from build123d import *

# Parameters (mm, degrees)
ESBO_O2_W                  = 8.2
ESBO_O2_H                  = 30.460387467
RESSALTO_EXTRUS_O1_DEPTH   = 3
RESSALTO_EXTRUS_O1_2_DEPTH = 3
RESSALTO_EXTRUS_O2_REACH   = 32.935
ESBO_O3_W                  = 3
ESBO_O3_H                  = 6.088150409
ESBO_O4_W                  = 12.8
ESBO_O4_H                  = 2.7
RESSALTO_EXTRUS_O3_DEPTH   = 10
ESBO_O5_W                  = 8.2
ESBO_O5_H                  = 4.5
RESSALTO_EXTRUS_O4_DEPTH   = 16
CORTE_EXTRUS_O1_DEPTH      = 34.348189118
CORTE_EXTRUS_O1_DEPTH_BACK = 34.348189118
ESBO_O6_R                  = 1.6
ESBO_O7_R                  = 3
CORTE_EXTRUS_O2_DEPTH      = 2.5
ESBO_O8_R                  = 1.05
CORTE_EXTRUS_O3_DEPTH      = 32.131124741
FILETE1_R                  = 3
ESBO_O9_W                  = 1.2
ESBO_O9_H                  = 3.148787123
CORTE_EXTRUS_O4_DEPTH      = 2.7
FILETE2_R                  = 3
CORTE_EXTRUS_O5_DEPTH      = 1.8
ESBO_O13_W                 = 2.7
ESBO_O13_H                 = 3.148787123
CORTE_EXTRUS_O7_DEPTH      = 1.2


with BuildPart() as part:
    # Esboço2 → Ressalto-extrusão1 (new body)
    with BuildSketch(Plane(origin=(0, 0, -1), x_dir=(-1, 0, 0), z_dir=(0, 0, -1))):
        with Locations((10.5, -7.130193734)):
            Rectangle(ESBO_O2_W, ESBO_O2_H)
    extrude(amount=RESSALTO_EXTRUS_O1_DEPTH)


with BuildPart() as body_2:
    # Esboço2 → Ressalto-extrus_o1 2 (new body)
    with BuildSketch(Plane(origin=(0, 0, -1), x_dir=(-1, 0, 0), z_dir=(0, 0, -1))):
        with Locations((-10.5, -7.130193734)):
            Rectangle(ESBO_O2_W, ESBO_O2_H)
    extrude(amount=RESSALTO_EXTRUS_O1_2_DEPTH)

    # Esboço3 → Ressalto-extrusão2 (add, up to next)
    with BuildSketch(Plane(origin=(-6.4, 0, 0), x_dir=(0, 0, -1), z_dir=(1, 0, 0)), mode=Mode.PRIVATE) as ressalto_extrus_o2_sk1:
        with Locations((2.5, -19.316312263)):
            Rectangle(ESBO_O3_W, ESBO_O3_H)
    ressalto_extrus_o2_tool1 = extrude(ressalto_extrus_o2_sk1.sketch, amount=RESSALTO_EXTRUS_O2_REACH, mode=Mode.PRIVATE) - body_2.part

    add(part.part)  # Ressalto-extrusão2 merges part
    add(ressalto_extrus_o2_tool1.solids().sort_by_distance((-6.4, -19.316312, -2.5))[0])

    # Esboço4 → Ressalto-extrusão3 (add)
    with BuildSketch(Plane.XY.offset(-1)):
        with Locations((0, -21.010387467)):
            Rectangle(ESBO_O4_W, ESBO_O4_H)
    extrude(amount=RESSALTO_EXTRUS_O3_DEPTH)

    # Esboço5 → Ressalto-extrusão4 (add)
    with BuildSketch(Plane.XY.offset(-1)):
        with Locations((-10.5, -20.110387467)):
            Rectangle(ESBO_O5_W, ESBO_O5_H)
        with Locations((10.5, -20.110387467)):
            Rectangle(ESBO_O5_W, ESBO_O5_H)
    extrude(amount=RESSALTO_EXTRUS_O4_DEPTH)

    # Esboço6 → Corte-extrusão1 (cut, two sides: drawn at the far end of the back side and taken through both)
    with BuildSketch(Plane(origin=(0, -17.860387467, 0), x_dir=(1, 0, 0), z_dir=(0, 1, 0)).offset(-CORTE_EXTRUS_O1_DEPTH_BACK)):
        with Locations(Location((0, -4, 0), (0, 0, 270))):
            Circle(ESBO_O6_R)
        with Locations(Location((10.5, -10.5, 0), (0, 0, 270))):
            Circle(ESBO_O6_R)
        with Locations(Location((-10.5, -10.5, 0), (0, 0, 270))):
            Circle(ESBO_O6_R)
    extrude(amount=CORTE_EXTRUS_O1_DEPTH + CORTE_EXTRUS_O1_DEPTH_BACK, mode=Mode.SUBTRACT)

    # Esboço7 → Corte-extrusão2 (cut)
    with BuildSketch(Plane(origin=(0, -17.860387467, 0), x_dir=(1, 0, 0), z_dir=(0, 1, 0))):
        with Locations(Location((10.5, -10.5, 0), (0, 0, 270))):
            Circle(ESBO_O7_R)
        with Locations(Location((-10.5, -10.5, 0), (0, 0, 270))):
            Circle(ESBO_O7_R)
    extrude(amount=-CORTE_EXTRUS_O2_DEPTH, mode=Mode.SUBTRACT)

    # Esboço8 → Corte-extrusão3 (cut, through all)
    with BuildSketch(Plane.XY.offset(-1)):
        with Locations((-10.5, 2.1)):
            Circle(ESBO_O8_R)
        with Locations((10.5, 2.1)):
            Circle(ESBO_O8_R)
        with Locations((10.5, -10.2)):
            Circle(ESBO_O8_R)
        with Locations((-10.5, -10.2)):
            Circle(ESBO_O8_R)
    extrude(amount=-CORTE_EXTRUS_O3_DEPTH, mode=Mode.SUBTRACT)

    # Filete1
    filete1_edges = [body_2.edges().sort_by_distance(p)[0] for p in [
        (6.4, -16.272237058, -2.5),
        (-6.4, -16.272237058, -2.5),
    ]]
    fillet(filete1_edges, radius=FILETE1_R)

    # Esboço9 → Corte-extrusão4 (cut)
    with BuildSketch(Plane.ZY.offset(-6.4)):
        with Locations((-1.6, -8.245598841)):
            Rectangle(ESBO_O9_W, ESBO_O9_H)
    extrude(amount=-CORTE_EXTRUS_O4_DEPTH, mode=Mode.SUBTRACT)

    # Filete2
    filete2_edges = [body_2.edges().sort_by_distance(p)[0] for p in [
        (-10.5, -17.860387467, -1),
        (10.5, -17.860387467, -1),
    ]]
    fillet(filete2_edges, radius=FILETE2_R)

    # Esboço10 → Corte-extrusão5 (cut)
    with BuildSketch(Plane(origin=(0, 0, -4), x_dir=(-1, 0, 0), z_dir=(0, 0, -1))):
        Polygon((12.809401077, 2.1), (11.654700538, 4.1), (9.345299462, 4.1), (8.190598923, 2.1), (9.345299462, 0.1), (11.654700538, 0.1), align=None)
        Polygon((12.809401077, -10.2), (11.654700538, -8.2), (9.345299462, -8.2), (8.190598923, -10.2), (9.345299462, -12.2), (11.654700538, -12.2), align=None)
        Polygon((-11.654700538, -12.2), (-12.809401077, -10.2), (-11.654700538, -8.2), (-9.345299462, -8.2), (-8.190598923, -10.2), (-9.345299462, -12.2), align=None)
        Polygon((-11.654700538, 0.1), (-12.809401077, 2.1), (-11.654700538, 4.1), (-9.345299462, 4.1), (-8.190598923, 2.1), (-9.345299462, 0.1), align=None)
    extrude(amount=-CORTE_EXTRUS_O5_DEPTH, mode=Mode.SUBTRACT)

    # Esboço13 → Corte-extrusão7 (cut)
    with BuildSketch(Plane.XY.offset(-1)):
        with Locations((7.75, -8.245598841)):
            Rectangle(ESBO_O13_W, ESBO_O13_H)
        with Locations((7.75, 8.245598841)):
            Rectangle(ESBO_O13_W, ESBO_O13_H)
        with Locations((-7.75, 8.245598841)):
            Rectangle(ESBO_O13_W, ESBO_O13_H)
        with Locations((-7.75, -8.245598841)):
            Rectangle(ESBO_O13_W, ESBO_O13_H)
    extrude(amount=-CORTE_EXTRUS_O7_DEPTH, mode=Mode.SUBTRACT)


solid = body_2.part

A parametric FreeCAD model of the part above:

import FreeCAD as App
import Part
import Sketcher
from FreeCAD import Vector
Q = App.Units.Quantity


def edges_at(feature, points):
    """Names of the edges that pass closest to the given points."""
    edges = feature.Shape.Edges
    near = lambda p: min(range(len(edges)), key=lambda i: edges[i].distToShape(Part.Vertex(*p))[0])
    return sorted({f"Edge{near(p) + 1}" for p in points})


def add_polygon(sketch, points):
    """Adds a closed chain of lines whose ends are joined by coincident constraints."""
    first, n = sketch.GeometryCount, len(points)
    for a, b in zip(points, points[1:] + points[:1]):
        sketch.addGeometry(Part.LineSegment(App.Vector(*a, 0), App.Vector(*b, 0)), False)
    for i in range(n):
        sketch.addConstraint(Sketcher.Constraint("Coincident", first + i, 2, first + (i + 1) % n, 1))

doc = App.newDocument("Part")
body = doc.addObject("PartDesign::Body", "Body")

sketch1 = doc.addObject("Sketcher::SketchObject", "Sketch")
body.addObject(sketch1)
sketch1.AttachmentSupport = (doc.XY_Plane, [""])
sketch1.MapMode = "FlatFace"
sketch1.AttachmentOffset = App.Placement(Vector(0, 0, -1), App.Rotation())
add_polygon(sketch1, [(-6, 8), (-6, -22), (-15, -22), (-15, 8)])
sketch1.addConstraint([
    Sketcher.Constraint("Vertical", 0),
    Sketcher.Constraint("Horizontal", 1),
    Sketcher.Constraint("Vertical", 2),
    Sketcher.Constraint("Horizontal", 3),
    Sketcher.Constraint("DistanceX", 1, 2, 1, 1, Q("8.2 mm")),
    Sketcher.Constraint("DistanceX", 0, 2, -1, 1, Q("6.4 mm")),
    Sketcher.Constraint("DistanceY", -1, 1, 2, 2, Q("8.1 mm")),
    Sketcher.Constraint("DistanceY", 0, 2, 0, 1, Q("30.460387 mm")),
])
pad1 = doc.addObject("PartDesign::Pad", "Pad")
body.addObject(pad1)
pad1.Profile = sketch1
pad1.Length = 3
pad1.Reversed = True
body2 = doc.addObject("PartDesign::Body", "Body001")
body2.AllowCompound = True

sketch2 = doc.addObject("Sketcher::SketchObject", "Sketch001")
body2.addObject(sketch2)
sketch2.AttachmentSupport = (doc.getObject("XY_Plane001"), [""])
sketch2.MapMode = "FlatFace"
sketch2.AttachmentOffset = App.Placement(Vector(0, 0, -1), App.Rotation())
add_polygon(sketch2, [(15, 8), (15, -22), (6, -22), (6, 8)])
sketch2.addConstraint([
    Sketcher.Constraint("Vertical", 0),
    Sketcher.Constraint("Horizontal", 1),
    Sketcher.Constraint("Vertical", 2),
    Sketcher.Constraint("Horizontal", 3),
    Sketcher.Constraint("DistanceX", 1, 2, 1, 1, Q("8.2 mm")),
    Sketcher.Constraint("DistanceX", -1, 1, 0, 2, Q("14.6 mm")),
    Sketcher.Constraint("DistanceY", -1, 1, 2, 2, Q("8.1 mm")),
    Sketcher.Constraint("DistanceY", 0, 2, 0, 1, Q("30.460387 mm")),
])
pad2 = doc.addObject("PartDesign::Pad", "Pad001")
body2.addObject(pad2)
pad2.Profile = sketch2
pad2.Length = 3
pad2.Reversed = True
doc.recompute()

boolean = doc.addObject("PartDesign::Boolean", "Boolean")
body2.addObject(boolean)
boolean.Type = "Fuse"
boolean.addObjects([body])

sketch3 = doc.addObject("Sketcher::SketchObject", "Sketch002")
body2.addObject(sketch3)
sketch3.AttachmentSupport = (doc.getObject("YZ_Plane001"), [""])
sketch3.MapMode = "FlatFace"
sketch3.AttachmentOffset = App.Placement(Vector(0, 0, -6.4), App.Rotation())
add_polygon(sketch3, [(-16.3, -1), (-22.4, -1), (-22.4, -4), (-16.3, -4)])
sketch3.addConstraint([
    Sketcher.Constraint("Horizontal", 0),
    Sketcher.Constraint("Vertical", 1),
    Sketcher.Constraint("Horizontal", 2),
    Sketcher.Constraint("Vertical", 3),
    Sketcher.Constraint("DistanceY", 1, 2, 1, 1, Q("3 mm")),
    Sketcher.Constraint("DistanceY", 0, 2, -1, 1, Q("1 mm")),
    Sketcher.Constraint("DistanceX", 0, 2, 0, 1, Q("6.08815 mm")),
    Sketcher.Constraint("DistanceX", 0, 2, -1, 1, Q("22.360387 mm")),
])
pad3 = doc.addObject("PartDesign::Pad", "Pad002")
body2.addObject(pad3)
pad3.Profile = sketch3
pad3.Type = "UpToFirst"

sketch4 = doc.addObject("Sketcher::SketchObject", "Sketch003")
body2.addObject(sketch4)
sketch4.AttachmentSupport = (doc.getObject("XY_Plane001"), [""])
sketch4.MapMode = "FlatFace"
sketch4.AttachmentOffset = App.Placement(Vector(0, 0, -1), App.Rotation())
add_polygon(sketch4, [(-6.4, -19.7), (-6.4, -22.4), (6.4, -22.4), (6.4, -19.7)])
sketch4.addConstraint([
    Sketcher.Constraint("Vertical", 0),
    Sketcher.Constraint("Horizontal", 1),
    Sketcher.Constraint("Vertical", 2),
    Sketcher.Constraint("Horizontal", 3),
    Sketcher.Constraint("DistanceX", 1, 1, 1, 2, Q("12.8 mm")),
    Sketcher.Constraint("DistanceY", 0, 2, 0, 1, Q("2.7 mm")),
    Sketcher.Constraint("DistanceX", 0, 2, -1, 1, Q("6.4 mm")),
    Sketcher.Constraint("DistanceY", 0, 2, -1, 1, Q("22.360387 mm")),
])
pad4 = doc.addObject("PartDesign::Pad", "Pad003")
body2.addObject(pad4)
pad4.Profile = sketch4
pad4.Length = 10

sketch5 = doc.addObject("Sketcher::SketchObject", "Sketch004")
body2.addObject(sketch5)
sketch5.AttachmentSupport = (doc.getObject("XY_Plane001"), [""])
sketch5.MapMode = "FlatFace"
sketch5.AttachmentOffset = App.Placement(Vector(0, 0, -1), App.Rotation())
add_polygon(sketch5, [(-14.6, -17.9), (-14.6, -22.4), (-6.4, -22.4), (-6.4, -17.9)])
add_polygon(sketch5, [(6.4, -17.9), (6.4, -22.4), (14.6, -22.4), (14.6, -17.9)])
sketch5.addConstraint([
    Sketcher.Constraint("Vertical", 0),
    Sketcher.Constraint("Horizontal", 1),
    Sketcher.Constraint("Vertical", 2),
    Sketcher.Constraint("Horizontal", 3),
    Sketcher.Constraint("Vertical", 4),
    Sketcher.Constraint("Horizontal", 5),
    Sketcher.Constraint("Vertical", 6),
    Sketcher.Constraint("Horizontal", 7),
    Sketcher.Constraint("Symmetric", 1, 2, 4, 2, -2),
    Sketcher.Constraint("Symmetric", 3, 2, 6, 2, -2),
    Sketcher.Constraint("DistanceX", 1, 1, 1, 2, Q("8.2 mm")),
    Sketcher.Constraint("DistanceY", 0, 2, 0, 1, Q("4.5 mm")),
    Sketcher.Constraint("DistanceX", 0, 2, 4, 2, Q("21 mm")),
    Sketcher.Constraint("DistanceY", 0, 2, -1, 1, Q("22.360387 mm")),
])
pad5 = doc.addObject("PartDesign::Pad", "Pad004")
body2.addObject(pad5)
pad5.Profile = sketch5
pad5.Length = 16

sketch6 = doc.addObject("Sketcher::SketchObject", "Sketch005")
body2.addObject(sketch6)
sketch6.AttachmentSupport = (doc.getObject("XZ_Plane001"), [""])
sketch6.MapMode = "FlatFace"
sketch6.AttachmentOffset = App.Placement(Vector(0, 0, 17.860387), App.Rotation())
sketch6.addGeometry([
    Part.Circle(Vector(0, 4, 0), Vector(0, 0, 1), 1.6),
    Part.Circle(Vector(10.5, 10.5, 0), Vector(0, 0, 1), 1.6),
    Part.Circle(Vector(-10.5, 10.5, 0), Vector(0, 0, 1), 1.6),
], False)
sketch6.addConstraint([
    Sketcher.Constraint("Equal", 0, 1),
    Sketcher.Constraint("Equal", 1, 2),
    Sketcher.Constraint("Symmetric", 1, 3, 2, 3, -2),
    Sketcher.Constraint("PointOnObject", 0, 3, -2),
    Sketcher.Constraint("Diameter", 0, Q("3.2 mm")),
    Sketcher.Constraint("DistanceY", -1, 1, 0, 3, Q("4 mm")),
    Sketcher.Constraint("DistanceX", 2, 3, 1, 3, Q("21 mm")),
    Sketcher.Constraint("DistanceY", -1, 1, 1, 3, Q("10.5 mm")),
])
pocket1 = doc.addObject("PartDesign::Pocket", "Pocket")
body2.addObject(pocket1)
pocket1.Profile = sketch6
pocket1.Type = "ThroughAll"
pocket1.Midplane = True

sketch7 = doc.addObject("Sketcher::SketchObject", "Sketch006")
body2.addObject(sketch7)
sketch7.AttachmentSupport = (doc.getObject("XZ_Plane001"), [""])
sketch7.MapMode = "FlatFace"
sketch7.AttachmentOffset = App.Placement(Vector(0, 0, 17.860387), App.Rotation())
sketch7.addGeometry([
    Part.Circle(Vector(10.5, 10.5, 0), Vector(0, 0, 1), 3),
    Part.Circle(Vector(-10.5, 10.5, 0), Vector(0, 0, 1), 3),
], False)
sketch7.addConstraint([
    Sketcher.Constraint("Equal", 0, 1),
    Sketcher.Constraint("Symmetric", 0, 3, 1, 3, -2),
    Sketcher.Constraint("Diameter", 0, Q("6 mm")),
    Sketcher.Constraint("DistanceX", 1, 3, 0, 3, Q("21 mm")),
    Sketcher.Constraint("DistanceY", -1, 1, 0, 3, Q("10.5 mm")),
])
pocket2 = doc.addObject("PartDesign::Pocket", "Pocket001")
body2.addObject(pocket2)
pocket2.Profile = sketch7
pocket2.Length = 2.5
pocket2.Reversed = True

sketch8 = doc.addObject("Sketcher::SketchObject", "Sketch007")
body2.addObject(sketch8)
sketch8.AttachmentSupport = (doc.getObject("XY_Plane001"), [""])
sketch8.MapMode = "FlatFace"
sketch8.AttachmentOffset = App.Placement(Vector(0, 0, -1), App.Rotation())
sketch8.addGeometry([
    Part.Circle(Vector(-10.5, 2.1, 0), Vector(0, 0, 1), 1.1),
    Part.Circle(Vector(10.5, 2.1, 0), Vector(0, 0, 1), 1.1),
    Part.Circle(Vector(10.5, -10.2, 0), Vector(0, 0, 1), 1.1),
    Part.Circle(Vector(-10.5, -10.2, 0), Vector(0, 0, 1), 1.1),
], False)
sketch8.addConstraint([
    Sketcher.Constraint("Equal", 0, 1),
    Sketcher.Constraint("Equal", 1, 2),
    Sketcher.Constraint("Equal", 2, 3),
    Sketcher.Constraint("Symmetric", 0, 3, 1, 3, -2),
    Sketcher.Constraint("Symmetric", 2, 3, 3, 3, -2),
    Sketcher.Constraint("Vertical", 1, 3, 2, 3),
    Sketcher.Constraint("Diameter", 0, Q("2.1 mm")),
    Sketcher.Constraint("DistanceX", 0, 3, 1, 3, Q("21 mm")),
    Sketcher.Constraint("DistanceY", -1, 1, 0, 3, Q("2.1 mm")),
    Sketcher.Constraint("DistanceY", 2, 3, -1, 1, Q("10.2 mm")),
])
pocket3 = doc.addObject("PartDesign::Pocket", "Pocket002")
body2.addObject(pocket3)
pocket3.Profile = sketch8
pocket3.Type = "ThroughAll"
doc.recompute()

fillet = doc.addObject("PartDesign::Fillet", "Fillet")
body2.addObject(fillet)
fillet.Base = (pocket3, edges_at(pocket3, [(6.4, -16.272, -2.5), (-6.4, -16.272, -2.5)]))
fillet.Radius = 3

sketch9 = doc.addObject("Sketcher::SketchObject", "Sketch008")
body2.addObject(sketch9)
sketch9.AttachmentSupport = (doc.getObject("YZ_Plane001"), [""])
sketch9.MapMode = "FlatFace"
sketch9.AttachmentOffset = App.Placement(Vector(0, 0, 6.4), App.Rotation())
add_polygon(sketch9, [(-6.7, -2.2), (-9.8, -2.2), (-9.8, -1), (-6.7, -1)])
sketch9.addConstraint([
    Sketcher.Constraint("Horizontal", 0),
    Sketcher.Constraint("Vertical", 1),
    Sketcher.Constraint("Horizontal", 2),
    Sketcher.Constraint("Vertical", 3),
    Sketcher.Constraint("DistanceY", 1, 1, 1, 2, Q("1.2 mm")),
    Sketcher.Constraint("DistanceY", 1, 2, -1, 1, Q("1 mm")),
    Sketcher.Constraint("DistanceX", 0, 2, 0, 1, Q("3.148787 mm")),
    Sketcher.Constraint("DistanceX", 0, 2, -1, 1, Q("9.819992 mm")),
])
pocket4 = doc.addObject("PartDesign::Pocket", "Pocket003")
body2.addObject(pocket4)
pocket4.Profile = sketch9
pocket4.Length = 2.7
pocket4.Reversed = True
doc.recompute()

fillet2 = doc.addObject("PartDesign::Fillet", "Fillet001")
body2.addObject(fillet2)
fillet2.Base = (pocket4, edges_at(pocket4, [(-10.5, -17.86, -1), (10.5, -17.86, -1)]))
fillet2.Radius = 3

sketch10 = doc.addObject("Sketcher::SketchObject", "Sketch009")
body2.addObject(sketch10)
sketch10.AttachmentSupport = (doc.getObject("XY_Plane001"), [""])
sketch10.MapMode = "FlatFace"
sketch10.AttachmentOffset = App.Placement(Vector(0, 0, -4), App.Rotation())
add_polygon(sketch10, [(-12.8, 2.1), (-11.7, 4.1), (-9.3, 4.1), (-8.2, 2.1), (-9.3, 0.1), (-11.7, 0.1)])
add_polygon(sketch10, [(-12.8, -10.2), (-11.7, -8.2), (-9.3, -8.2), (-8.2, -10.2), (-9.3, -12.2), (-11.7, -12.2)])
add_polygon(sketch10, [(12.8, -10.2), (11.7, -12.2), (9.3, -12.2), (8.2, -10.2), (9.3, -8.2), (11.7, -8.2)])
add_polygon(sketch10, [(12.8, 2.1), (11.7, 0.1), (9.3, 0.1), (8.2, 2.1), (9.3, 4.1), (11.7, 4.1)])
sketch10.addConstraint([
    Sketcher.Constraint("Horizontal", 1),
    Sketcher.Constraint("Horizontal", 4),
    Sketcher.Constraint("Horizontal", 7),
    Sketcher.Constraint("Horizontal", 10),
    Sketcher.Constraint("Horizontal", 13),
    Sketcher.Constraint("Horizontal", 16),
    Sketcher.Constraint("Horizontal", 19),
    Sketcher.Constraint("Horizontal", 22),
    Sketcher.Constraint("Symmetric", 10, 2, 12, 2, -2),
    Sketcher.Constraint("Symmetric", 8, 2, 14, 2, -2),
    Sketcher.Constraint("Symmetric", 7, 2, 15, 2, -2),
    Sketcher.Constraint("Symmetric", 11, 2, 17, 2, -2),
    Sketcher.Constraint("Symmetric", 4, 2, 18, 2, -2),
    Sketcher.Constraint("Symmetric", 2, 2, 20, 2, -2),
    Sketcher.Constraint("Symmetric", 1, 2, 21, 2, -2),
    Sketcher.Constraint("Symmetric", 5, 2, 23, 2, -2),
    Sketcher.Constraint("Parallel", 0, 3),
    Sketcher.Constraint("Parallel", 2, 5),
    Sketcher.Constraint("Parallel", 3, 6),
    Sketcher.Constraint("Parallel", 5, 8),
    Sketcher.Constraint("Parallel", 6, 9),
    Sketcher.Constraint("Parallel", 8, 11),
    Sketcher.Constraint("Parallel", 9, 12),
    Sketcher.Constraint("Parallel", 11, 14),
    Sketcher.Constraint("Parallel", 14, 17),
    Sketcher.Constraint("Parallel", 17, 20),
    Sketcher.Constraint("Parallel", 20, 23),
    Sketcher.Constraint("Horizontal", 2, 2, 5, 2),
    Sketcher.Constraint("Horizontal", 8, 2, 11, 2),
    Sketcher.Constraint("Vertical", 1, 2, 3, 2),
    Sketcher.Constraint("Vertical", 4, 2, 6, 2),
    Sketcher.Constraint("Vertical", 3, 2, 7, 2),
    Sketcher.Constraint("Vertical", 2, 2, 8, 2),
    Sketcher.Constraint("Vertical", 7, 2, 9, 2),
    Sketcher.Constraint("Angle", 0, Q("60 deg")),
    Sketcher.Constraint("DistanceY", 2, 2, 1, 2, Q("2 mm")),
    Sketcher.Constraint("DistanceX", 9, 2, 12, 2, Q("21 mm")),
    Sketcher.Constraint("DistanceY", -1, 1, 0, 2, Q("4.1 mm")),
    Sketcher.Constraint("DistanceY", 6, 2, -1, 1, Q("8.2 mm")),
    Sketcher.Constraint("DistanceX", 1, 1, 1, 2, Q("2.309401 mm")),
])
pocket5 = doc.addObject("PartDesign::Pocket", "Pocket004")
body2.addObject(pocket5)
pocket5.Profile = sketch10
pocket5.Length = 1.8
pocket5.Reversed = True

sketch11 = doc.addObject("Sketcher::SketchObject", "Sketch010")
body2.addObject(sketch11)
sketch11.AttachmentSupport = (doc.getObject("XY_Plane001"), [""])
sketch11.MapMode = "FlatFace"
sketch11.AttachmentOffset = App.Placement(Vector(0, 0, -1), App.Rotation())
add_polygon(sketch11, [(6.4, -6.7), (6.4, -9.8), (9.1, -9.8), (9.1, -6.7)])
add_polygon(sketch11, [(6.4, 9.8), (6.4, 6.7), (9.1, 6.7), (9.1, 9.8)])
add_polygon(sketch11, [(-9.1, 9.8), (-9.1, 6.7), (-6.4, 6.7), (-6.4, 9.8)])
add_polygon(sketch11, [(-9.1, -6.7), (-9.1, -9.8), (-6.4, -9.8), (-6.4, -6.7)])
sketch11.addConstraint([
    Sketcher.Constraint("Vertical", 0),
    Sketcher.Constraint("Horizontal", 1),
    Sketcher.Constraint("Vertical", 2),
    Sketcher.Constraint("Horizontal", 3),
    Sketcher.Constraint("Vertical", 4),
    Sketcher.Constraint("Horizontal", 5),
    Sketcher.Constraint("Vertical", 6),
    Sketcher.Constraint("Horizontal", 7),
    Sketcher.Constraint("Vertical", 8),
    Sketcher.Constraint("Horizontal", 9),
    Sketcher.Constraint("Vertical", 10),
    Sketcher.Constraint("Horizontal", 11),
    Sketcher.Constraint("Vertical", 12),
    Sketcher.Constraint("Horizontal", 13),
    Sketcher.Constraint("Vertical", 14),
    Sketcher.Constraint("Horizontal", 15),
    Sketcher.Constraint("Symmetric", 2, 2, 8, 2, -1, 1),
    Sketcher.Constraint("Symmetric", 0, 2, 10, 2, -1, 1),
    Sketcher.Constraint("Symmetric", 6, 2, 12, 2, -1, 1),
    Sketcher.Constraint("Symmetric", 4, 2, 14, 2, -1, 1),
    Sketcher.Constraint("Symmetric", 5, 2, 8, 2, -2),
    Sketcher.Constraint("Symmetric", 7, 2, 10, 2, -2),
    Sketcher.Constraint("DistanceX", 1, 1, 1, 2, Q("2.7 mm")),
    Sketcher.Constraint("DistanceX", -1, 1, 0, 2, Q("6.4 mm")),
    Sketcher.Constraint("DistanceY", 0, 2, 0, 1, Q("3.148787 mm")),
    Sketcher.Constraint("DistanceY", 3, 2, 4, 2, Q("13.342411 mm")),
])
pocket6 = doc.addObject("PartDesign::Pocket", "Pocket005")
body2.addObject(pocket6)
pocket6.Profile = sketch11
pocket6.Length = 1.2

doc.recompute()
